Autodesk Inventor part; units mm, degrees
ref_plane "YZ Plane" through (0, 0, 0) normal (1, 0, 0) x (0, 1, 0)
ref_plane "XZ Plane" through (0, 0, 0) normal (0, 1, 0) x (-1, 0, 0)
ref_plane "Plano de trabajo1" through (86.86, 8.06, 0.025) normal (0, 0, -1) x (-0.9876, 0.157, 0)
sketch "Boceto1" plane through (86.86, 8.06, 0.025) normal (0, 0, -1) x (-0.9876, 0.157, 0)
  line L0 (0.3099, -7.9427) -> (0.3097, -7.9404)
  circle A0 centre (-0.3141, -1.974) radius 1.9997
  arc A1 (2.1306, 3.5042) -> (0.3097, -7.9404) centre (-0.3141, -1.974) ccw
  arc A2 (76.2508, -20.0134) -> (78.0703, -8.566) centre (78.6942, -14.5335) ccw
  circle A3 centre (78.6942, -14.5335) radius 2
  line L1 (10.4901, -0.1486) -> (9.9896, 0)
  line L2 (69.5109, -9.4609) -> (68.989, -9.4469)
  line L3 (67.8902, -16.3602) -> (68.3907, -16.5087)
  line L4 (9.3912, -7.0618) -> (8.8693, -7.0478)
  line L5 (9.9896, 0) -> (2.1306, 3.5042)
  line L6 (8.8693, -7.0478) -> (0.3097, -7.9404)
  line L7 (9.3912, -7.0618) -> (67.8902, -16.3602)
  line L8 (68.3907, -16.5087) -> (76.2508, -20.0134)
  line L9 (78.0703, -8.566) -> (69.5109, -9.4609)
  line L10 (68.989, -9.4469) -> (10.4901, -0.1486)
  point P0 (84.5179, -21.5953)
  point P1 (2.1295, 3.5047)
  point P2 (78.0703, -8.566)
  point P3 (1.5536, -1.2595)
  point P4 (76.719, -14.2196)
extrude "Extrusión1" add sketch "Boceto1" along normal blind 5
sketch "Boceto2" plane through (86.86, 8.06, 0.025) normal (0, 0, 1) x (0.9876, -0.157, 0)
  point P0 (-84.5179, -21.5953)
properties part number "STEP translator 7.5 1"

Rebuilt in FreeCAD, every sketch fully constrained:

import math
import FreeCAD as App
import Part
import Sketcher
from FreeCAD import Vector
Q = App.Units.Quantity

doc = App.newDocument("Part")
body = doc.addObject("PartDesign::Body", "Body")

sketch1 = body.newObject("Sketcher::SketchObject", "Sketch")
sketch1.AttachmentSupport = (doc.getObject("XY_Plane"), [""])
sketch1.MapMode = "FlatFace"
sketch1.AttachmentOffset = App.Placement(Vector(0, 0, 0.025), App.Rotation())
sketch1.addGeometry([
    Part.LineSegment(Vector(76.994285, 9.628365, 0), Vector(85.305981, 11.855247, 0)),
    Part.ArcOfCircle(Part.Circle(Vector(86.860287, 6.061167, 0), Vector(0, 0, 1), 5.998936), math.radians(-105.001508), math.radians(105.016487)),
    Part.LineSegment(Vector(85.3075, 0.266695, 0), Vector(76.994188, 2.492081, 0)),
    Part.LineSegment(Vector(76.994188, 2.492081, 0), Vector(76.476563, 2.560192, 0)),
    Part.LineSegment(Vector(76.476563, 2.560192, 0), Vector(17.243183, 2.561435, 0)),
    Part.LineSegment(Vector(17.243183, 2.561435, 0), Vector(16.725576, 2.493355, 0)),
    Part.LineSegment(Vector(16.725576, 2.493355, 0), Vector(8.412714, 0.266152, 0)),
    Part.ArcOfCircle(Part.Circle(Vector(6.859959, 6.061708, 0), Vector(0, 0, 1), 5.999959), math.radians(74.998635), math.radians(284.998534)),
    Part.LineSegment(Vector(8.413018, 11.85725, 0), Vector(16.725771, 9.629624, 0)),
    Part.LineSegment(Vector(16.725771, 9.629624, 0), Vector(17.243396, 9.561512, 0)),
    Part.LineSegment(Vector(17.243396, 9.561512, 0), Vector(76.476661, 9.560186, 0)),
    Part.LineSegment(Vector(76.476661, 9.560186, 0), Vector(76.994285, 9.628365, 0)),
    Part.Circle(Vector(6.859959, 6.061708, 0), Vector(0, 0, 1), 2),
    Part.Circle(Vector(86.860287, 6.061167, 0), Vector(0, 0, 1), 1.9997),
], False)
sketch1.addConstraint([
    Sketcher.Constraint("Coincident", 0, 2, 1, 2),
    Sketcher.Constraint("Coincident", 1, 1, 2, 1),
    Sketcher.Constraint("Coincident", 2, 2, 3, 1),
    Sketcher.Constraint("Coincident", 3, 2, 4, 1),
    Sketcher.Constraint("Coincident", 4, 2, 5, 1),
    Sketcher.Constraint("Coincident", 5, 2, 6, 1),
    Sketcher.Constraint("Coincident", 6, 2, 7, 2),
    Sketcher.Constraint("Coincident", 7, 1, 8, 1),
    Sketcher.Constraint("Coincident", 8, 2, 9, 1),
    Sketcher.Constraint("Coincident", 9, 2, 10, 1),
    Sketcher.Constraint("Coincident", 10, 2, 11, 1),
    Sketcher.Constraint("Coincident", 11, 2, 0, 1),
    Sketcher.Constraint("Coincident", 12, 3, 7, 3),
    Sketcher.Constraint("Coincident", 13, 3, 1, 3),
    Sketcher.Constraint("Diameter", 12, Q("4 mm")),
    Sketcher.Constraint("Radius", 7, Q("6 mm")),
    Sketcher.Constraint("Radius", 1, Q("5.999 mm")),
    Sketcher.Constraint("DistanceY", 4, 2, 9, 2, Q("7 mm")),
    Sketcher.Constraint("DistanceY", 3, 2, 10, 2, Q("7 mm")),
    Sketcher.Constraint("Diameter", 13, Q("3.9994 mm")),
    Sketcher.Constraint("DistanceX", -1, 1, 7, 3, Q("6.86 mm")),
    Sketcher.Constraint("Distance", 2, Q("8.606 mm")),
    Sketcher.Constraint("Distance", 3, Q("0.522 mm")),
    Sketcher.Constraint("Distance", 5, Q("0.522 mm")),
    Sketcher.Constraint("Distance", 6, Q("8.606 mm")),
    Sketcher.Constraint("Distance", 8, Q("8.606 mm")),
    Sketcher.Constraint("Distance", 9, Q("0.522 mm")),
    Sketcher.Constraint("Distance", 11, Q("0.522 mm")),
    Sketcher.Constraint("DistanceX", -1, 1, 0, 2, Q("85.306 mm")),
    Sketcher.Constraint("DistanceY", -1, 1, 2, 2, Q("2.492 mm")),
    Sketcher.Constraint("DistanceX", -1, 1, 7, 1, Q("8.413 mm")),
    Sketcher.Constraint("DistanceY", 1, 3, 0, 2, Q("5.794 mm")),
    Sketcher.Constraint("DistanceY", 1, 1, 7, 3, Q("5.795 mm")),
    Sketcher.Constraint("DistanceX", 2, 2, 1, 3, Q("9.866 mm")),
    Sketcher.Constraint("DistanceY", 2, 2, 1, 3, Q("3.569 mm")),
    Sketcher.Constraint("DistanceY", 2, 2, 3, 2, Q("0.068 mm")),
    Sketcher.Constraint("DistanceX", 4, 2, 2, 2, Q("59.751 mm")),
    Sketcher.Constraint("DistanceY", 5, 2, 4, 2, Q("0.068 mm")),
    Sketcher.Constraint("DistanceY", 6, 2, 3, 2, Q("2.294 mm")),
    Sketcher.Constraint("DistanceY", 7, 3, 8, 2, Q("3.568 mm")),
    Sketcher.Constraint("DistanceY", 11, 2, 0, 2, Q("2.227 mm")),
    Sketcher.Constraint("DistanceX", 11, 2, 1, 3, Q("9.866 mm")),
])
pad1 = body.newObject("PartDesign::Pad", "Pad")
pad1.Profile = sketch1
pad1.Length = 5
pad1.Reversed = True

doc.recompute()
